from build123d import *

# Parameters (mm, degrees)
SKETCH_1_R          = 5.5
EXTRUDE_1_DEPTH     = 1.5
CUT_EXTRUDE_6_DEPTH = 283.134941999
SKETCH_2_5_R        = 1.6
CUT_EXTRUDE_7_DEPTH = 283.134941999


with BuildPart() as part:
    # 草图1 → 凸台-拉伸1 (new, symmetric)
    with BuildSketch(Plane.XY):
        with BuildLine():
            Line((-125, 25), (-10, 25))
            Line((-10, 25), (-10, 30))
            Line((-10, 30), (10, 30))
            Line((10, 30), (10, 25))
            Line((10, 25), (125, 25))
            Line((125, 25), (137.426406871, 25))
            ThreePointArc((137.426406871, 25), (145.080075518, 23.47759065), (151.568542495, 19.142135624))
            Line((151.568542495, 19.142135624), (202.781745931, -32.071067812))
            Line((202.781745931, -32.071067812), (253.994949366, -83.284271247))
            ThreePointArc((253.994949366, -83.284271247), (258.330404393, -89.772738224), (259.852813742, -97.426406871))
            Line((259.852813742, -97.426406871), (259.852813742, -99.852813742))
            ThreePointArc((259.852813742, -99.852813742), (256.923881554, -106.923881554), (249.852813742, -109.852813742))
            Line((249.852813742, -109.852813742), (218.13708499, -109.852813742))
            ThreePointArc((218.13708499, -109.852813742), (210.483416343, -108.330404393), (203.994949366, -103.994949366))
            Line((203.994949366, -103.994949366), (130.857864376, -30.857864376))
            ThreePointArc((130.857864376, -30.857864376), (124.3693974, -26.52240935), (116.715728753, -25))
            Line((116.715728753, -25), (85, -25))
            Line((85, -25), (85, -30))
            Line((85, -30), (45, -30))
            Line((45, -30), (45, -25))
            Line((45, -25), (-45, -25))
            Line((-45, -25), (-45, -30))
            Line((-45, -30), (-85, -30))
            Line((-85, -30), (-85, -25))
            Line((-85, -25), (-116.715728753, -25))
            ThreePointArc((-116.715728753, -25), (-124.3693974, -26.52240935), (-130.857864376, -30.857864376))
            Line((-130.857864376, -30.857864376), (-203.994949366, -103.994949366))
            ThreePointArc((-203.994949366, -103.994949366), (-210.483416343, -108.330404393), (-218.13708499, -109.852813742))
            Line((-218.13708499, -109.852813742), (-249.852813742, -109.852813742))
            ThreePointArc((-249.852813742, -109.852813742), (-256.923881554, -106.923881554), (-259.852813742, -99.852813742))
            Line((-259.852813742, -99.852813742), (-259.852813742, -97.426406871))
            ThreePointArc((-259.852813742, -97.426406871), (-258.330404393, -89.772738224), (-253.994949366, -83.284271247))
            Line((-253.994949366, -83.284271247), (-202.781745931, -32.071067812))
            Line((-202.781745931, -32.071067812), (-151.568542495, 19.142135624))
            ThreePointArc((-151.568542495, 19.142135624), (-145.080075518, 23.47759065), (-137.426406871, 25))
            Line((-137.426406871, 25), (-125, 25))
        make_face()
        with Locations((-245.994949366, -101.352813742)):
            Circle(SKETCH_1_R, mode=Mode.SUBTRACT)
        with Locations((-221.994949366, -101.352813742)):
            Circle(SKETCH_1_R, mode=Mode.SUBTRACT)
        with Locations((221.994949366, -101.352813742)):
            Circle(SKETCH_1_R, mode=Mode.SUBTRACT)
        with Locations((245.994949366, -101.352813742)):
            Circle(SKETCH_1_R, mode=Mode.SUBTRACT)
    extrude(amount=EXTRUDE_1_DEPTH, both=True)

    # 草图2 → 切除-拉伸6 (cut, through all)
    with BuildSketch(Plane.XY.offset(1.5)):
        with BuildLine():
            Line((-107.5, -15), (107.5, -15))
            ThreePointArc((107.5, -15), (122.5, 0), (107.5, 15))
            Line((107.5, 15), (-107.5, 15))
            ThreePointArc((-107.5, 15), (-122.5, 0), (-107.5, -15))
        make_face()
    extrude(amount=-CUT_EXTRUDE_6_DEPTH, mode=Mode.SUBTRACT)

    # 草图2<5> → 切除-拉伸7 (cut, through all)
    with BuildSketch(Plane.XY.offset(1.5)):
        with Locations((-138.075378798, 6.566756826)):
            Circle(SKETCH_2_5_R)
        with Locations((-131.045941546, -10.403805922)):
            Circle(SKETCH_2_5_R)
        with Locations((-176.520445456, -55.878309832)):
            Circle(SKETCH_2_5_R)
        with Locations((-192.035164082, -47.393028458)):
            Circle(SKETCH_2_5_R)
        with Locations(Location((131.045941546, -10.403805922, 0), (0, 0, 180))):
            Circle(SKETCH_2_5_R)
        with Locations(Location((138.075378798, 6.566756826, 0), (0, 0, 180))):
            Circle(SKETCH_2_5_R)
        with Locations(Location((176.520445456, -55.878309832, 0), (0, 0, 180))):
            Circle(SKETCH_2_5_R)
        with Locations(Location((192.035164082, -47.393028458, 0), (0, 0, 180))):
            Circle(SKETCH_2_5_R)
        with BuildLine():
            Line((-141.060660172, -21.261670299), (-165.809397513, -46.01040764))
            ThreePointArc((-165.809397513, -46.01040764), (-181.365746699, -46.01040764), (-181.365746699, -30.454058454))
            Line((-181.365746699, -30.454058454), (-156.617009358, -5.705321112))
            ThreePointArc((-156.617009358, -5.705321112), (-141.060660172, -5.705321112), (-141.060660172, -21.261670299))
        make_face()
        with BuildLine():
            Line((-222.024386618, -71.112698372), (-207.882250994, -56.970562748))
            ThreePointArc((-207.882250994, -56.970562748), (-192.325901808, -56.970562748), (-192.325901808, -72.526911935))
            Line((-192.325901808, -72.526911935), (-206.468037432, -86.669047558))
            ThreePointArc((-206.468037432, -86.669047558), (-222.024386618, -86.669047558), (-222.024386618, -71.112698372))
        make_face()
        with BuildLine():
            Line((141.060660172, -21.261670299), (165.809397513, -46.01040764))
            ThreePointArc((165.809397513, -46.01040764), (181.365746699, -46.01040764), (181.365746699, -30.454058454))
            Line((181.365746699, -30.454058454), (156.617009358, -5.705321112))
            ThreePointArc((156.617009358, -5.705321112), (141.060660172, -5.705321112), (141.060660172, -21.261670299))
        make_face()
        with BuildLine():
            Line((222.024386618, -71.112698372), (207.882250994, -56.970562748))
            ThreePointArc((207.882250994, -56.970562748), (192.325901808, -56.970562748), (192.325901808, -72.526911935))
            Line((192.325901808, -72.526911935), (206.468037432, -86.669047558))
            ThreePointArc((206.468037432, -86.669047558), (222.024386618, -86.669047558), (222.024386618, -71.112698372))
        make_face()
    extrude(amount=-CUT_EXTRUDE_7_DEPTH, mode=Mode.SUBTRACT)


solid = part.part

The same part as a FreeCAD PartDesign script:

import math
import FreeCAD as App
import Part
import Sketcher
from FreeCAD import Vector

doc = App.newDocument("Part")
body = doc.addObject("PartDesign::Body", "Body")

sketch1 = body.newObject("Sketcher::SketchObject", "Sketch")
sketch1.AttachmentSupport = (doc.getObject("XY_Plane"), [""])
sketch1.MapMode = "FlatFace"
sketch1.addGeometry(Part.LineSegment(Vector(-10, 30, 0), Vector(-10, 25, 0)), False)
sketch1.addGeometry(Part.LineSegment(Vector(-10, 25, 0), Vector(-137.4, 25, 0)), False)
sketch1.addGeometry(Part.ArcOfCircle(Part.Circle(Vector(-137.4, 5, 0), Vector(0, 0, 1), 20), math.radians(90), math.radians(135)), False)
sketch1.addGeometry(Part.LineSegment(Vector(-151.6, 19.1, 0), Vector(-254, -83.3, 0)), False)
sketch1.addGeometry(Part.ArcOfCircle(Part.Circle(Vector(-239.9, -97.4, 0), Vector(0, 0, 1), 20), math.radians(135), math.radians(180)), False)
sketch1.addGeometry(Part.LineSegment(Vector(-259.9, -97.4, 0), Vector(-259.9, -99.9, 0)), False)
sketch1.addGeometry(Part.ArcOfCircle(Part.Circle(Vector(-249.9, -99.9, 0), Vector(0, 0, 1), 10), math.radians(180), math.radians(270)), False)
sketch1.addGeometry(Part.LineSegment(Vector(-249.9, -109.9, 0), Vector(-218.1, -109.9, 0)), False)
sketch1.addGeometry(Part.ArcOfCircle(Part.Circle(Vector(-218.1, -89.9, 0), Vector(0, 0, 1), 20), math.radians(-90), math.radians(-45)), False)
sketch1.addGeometry(Part.LineSegment(Vector(-204, -104, 0), Vector(-130.9, -30.9, 0)), False)
sketch1.addGeometry(Part.ArcOfCircle(Part.Circle(Vector(-116.7, -45, 0), Vector(0, 0, 1), 20), math.radians(90), math.radians(135)), False)
sketch1.addGeometry(Part.LineSegment(Vector(-116.7, -25, 0), Vector(-85, -25, 0)), False)
sketch1.addGeometry(Part.LineSegment(Vector(-85, -25, 0), Vector(-85, -30, 0)), False)
sketch1.addGeometry(Part.LineSegment(Vector(-85, -30, 0), Vector(-45, -30, 0)), False)
sketch1.addGeometry(Part.LineSegment(Vector(-45, -30, 0), Vector(-45, -25, 0)), False)
sketch1.addGeometry(Part.LineSegment(Vector(-45, -25, 0), Vector(45, -25, 0)), False)
sketch1.addGeometry(Part.LineSegment(Vector(45, -25, 0), Vector(45, -30, 0)), False)
sketch1.addGeometry(Part.LineSegment(Vector(45, -30, 0), Vector(85, -30, 0)), False)
sketch1.addGeometry(Part.LineSegment(Vector(85, -30, 0), Vector(85, -25, 0)), False)
sketch1.addGeometry(Part.LineSegment(Vector(85, -25, 0), Vector(116.7, -25, 0)), False)
sketch1.addGeometry(Part.ArcOfCircle(Part.Circle(Vector(116.7, -45, 0), Vector(0, 0, 1), 20), math.radians(45), math.radians(90)), False)
sketch1.addGeometry(Part.LineSegment(Vector(130.9, -30.9, 0), Vector(204, -104, 0)), False)
sketch1.addGeometry(Part.ArcOfCircle(Part.Circle(Vector(218.1, -89.9, 0), Vector(0, 0, 1), 20), math.radians(-135), math.radians(-90)), False)
sketch1.addGeometry(Part.LineSegment(Vector(218.1, -109.9, 0), Vector(249.9, -109.9, 0)), False)
sketch1.addGeometry(Part.ArcOfCircle(Part.Circle(Vector(249.9, -99.9, 0), Vector(0, 0, 1), 10), math.radians(-90), math.radians(0)), False)
sketch1.addGeometry(Part.LineSegment(Vector(259.9, -99.9, 0), Vector(259.9, -97.4, 0)), False)
sketch1.addGeometry(Part.ArcOfCircle(Part.Circle(Vector(239.9, -97.4, 0), Vector(0, 0, 1), 20), math.radians(0), math.radians(45)), False)
sketch1.addGeometry(Part.LineSegment(Vector(254, -83.3, 0), Vector(151.6, 19.1, 0)), False)
sketch1.addGeometry(Part.ArcOfCircle(Part.Circle(Vector(137.4, 5, 0), Vector(0, 0, 1), 20), math.radians(45), math.radians(90)), False)
sketch1.addGeometry(Part.LineSegment(Vector(137.4, 25, 0), Vector(10, 25, 0)), False)
sketch1.addGeometry(Part.LineSegment(Vector(10, 25, 0), Vector(10, 30, 0)), False)
sketch1.addGeometry(Part.LineSegment(Vector(10, 30, 0), Vector(-10, 30, 0)), False)
sketch1.addGeometry(Part.Circle(Vector(246, -101.4, 0), Vector(0, 0, 1), 5.5), False)
sketch1.addGeometry(Part.Circle(Vector(222, -101.4, 0), Vector(0, 0, 1), 5.5), False)
sketch1.addGeometry(Part.Circle(Vector(-222, -101.4, 0), Vector(0, 0, 1), 5.5), False)
sketch1.addGeometry(Part.Circle(Vector(-246, -101.4, 0), Vector(0, 0, 1), 5.5), False)
sketch1.addConstraint(Sketcher.Constraint("Coincident", 0, 2, 1, 1))
sketch1.addConstraint(Sketcher.Constraint("Tangent", 1, 2, 2, 1))
sketch1.addConstraint(Sketcher.Constraint("Tangent", 2, 2, 3, 1))
sketch1.addConstraint(Sketcher.Constraint("Tangent", 3, 2, 4, 1))
sketch1.addConstraint(Sketcher.Constraint("Tangent", 4, 2, 5, 1))
sketch1.addConstraint(Sketcher.Constraint("Tangent", 5, 2, 6, 1))
sketch1.addConstraint(Sketcher.Constraint("Tangent", 6, 2, 7, 1))
sketch1.addConstraint(Sketcher.Constraint("Tangent", 7, 2, 8, 1))
sketch1.addConstraint(Sketcher.Constraint("Tangent", 8, 2, 9, 1))
sketch1.addConstraint(Sketcher.Constraint("Tangent", 9, 2, 10, 2))
sketch1.addConstraint(Sketcher.Constraint("Tangent", 10, 1, 11, 1))
sketch1.addConstraint(Sketcher.Constraint("Coincident", 11, 2, 12, 1))
sketch1.addConstraint(Sketcher.Constraint("Coincident", 12, 2, 13, 1))
sketch1.addConstraint(Sketcher.Constraint("Coincident", 13, 2, 14, 1))
sketch1.addConstraint(Sketcher.Constraint("Coincident", 14, 2, 15, 1))
sketch1.addConstraint(Sketcher.Constraint("Coincident", 15, 2, 16, 1))
sketch1.addConstraint(Sketcher.Constraint("Coincident", 16, 2, 17, 1))
sketch1.addConstraint(Sketcher.Constraint("Coincident", 17, 2, 18, 1))
sketch1.addConstraint(Sketcher.Constraint("Coincident", 18, 2, 19, 1))
sketch1.addConstraint(Sketcher.Constraint("Tangent", 19, 2, 20, 2))
sketch1.addConstraint(Sketcher.Constraint("Tangent", 20, 1, 21, 1))
sketch1.addConstraint(Sketcher.Constraint("Tangent", 21, 2, 22, 1))
sketch1.addConstraint(Sketcher.Constraint("Tangent", 22, 2, 23, 1))
sketch1.addConstraint(Sketcher.Constraint("Tangent", 23, 2, 24, 1))
sketch1.addConstraint(Sketcher.Constraint("Tangent", 24, 2, 25, 1))
sketch1.addConstraint(Sketcher.Constraint("Tangent", 25, 2, 26, 1))
sketch1.addConstraint(Sketcher.Constraint("Tangent", 26, 2, 27, 1))
sketch1.addConstraint(Sketcher.Constraint("Tangent", 27, 2, 28, 1))
sketch1.addConstraint(Sketcher.Constraint("Tangent", 28, 2, 29, 1))
sketch1.addConstraint(Sketcher.Constraint("Coincident", 29, 2, 30, 1))
sketch1.addConstraint(Sketcher.Constraint("Coincident", 30, 2, 31, 1))
sketch1.addConstraint(Sketcher.Constraint("Coincident", 31, 2, 0, 1))
sketch1.addConstraint(Sketcher.Constraint("Vertical", 0))
sketch1.addConstraint(Sketcher.Constraint("Horizontal", 1))
sketch1.addConstraint(Sketcher.Constraint("Vertical", 5))
sketch1.addConstraint(Sketcher.Constraint("Horizontal", 7))
sketch1.addConstraint(Sketcher.Constraint("Horizontal", 11))
sketch1.addConstraint(Sketcher.Constraint("Vertical", 12))
sketch1.addConstraint(Sketcher.Constraint("Horizontal", 13))
sketch1.addConstraint(Sketcher.Constraint("Vertical", 14))
sketch1.addConstraint(Sketcher.Constraint("Horizontal", 15))
sketch1.addConstraint(Sketcher.Constraint("Vertical", 16))
sketch1.addConstraint(Sketcher.Constraint("Horizontal", 17))
sketch1.addConstraint(Sketcher.Constraint("Vertical", 18))
sketch1.addConstraint(Sketcher.Constraint("Horizontal", 19))
sketch1.addConstraint(Sketcher.Constraint("Horizontal", 23))
sketch1.addConstraint(Sketcher.Constraint("Vertical", 25))
sketch1.addConstraint(Sketcher.Constraint("Horizontal", 29))
sketch1.addConstraint(Sketcher.Constraint("Vertical", 30))
sketch1.addConstraint(Sketcher.Constraint("Horizontal", 31))
sketch1.addConstraint(Sketcher.Constraint("Equal", 2, 4))
sketch1.addConstraint(Sketcher.Constraint("Equal", 4, 8))
sketch1.addConstraint(Sketcher.Constraint("Equal", 8, 10))
sketch1.addConstraint(Sketcher.Constraint("Equal", 10, 20))
sketch1.addConstraint(Sketcher.Constraint("Equal", 20, 22))
sketch1.addConstraint(Sketcher.Constraint("Equal", 6, 24))
sketch1.addConstraint(Sketcher.Constraint("Equal", 22, 26))
sketch1.addConstraint(Sketcher.Constraint("Equal", 26, 28))
sketch1.addConstraint(Sketcher.Constraint("Equal", 32, 33))
sketch1.addConstraint(Sketcher.Constraint("Equal", 33, 34))
sketch1.addConstraint(Sketcher.Constraint("Equal", 34, 35))
sketch1.addConstraint(Sketcher.Constraint("Symmetric", 10, 3, 20, 3, -2))
sketch1.addConstraint(Sketcher.Constraint("Symmetric", 8, 3, 22, 3, -2))
sketch1.addConstraint(Sketcher.Constraint("Symmetric", 4, 3, 26, 3, -2))
sketch1.addConstraint(Sketcher.Constraint("Symmetric", 2, 3, 28, 3, -2))
sketch1.addConstraint(Sketcher.Constraint("Symmetric", 33, 3, 34, 3, -2))
sketch1.addConstraint(Sketcher.Constraint("Symmetric", 32, 3, 35, 3, -2))
sketch1.addConstraint(Sketcher.Constraint("Symmetric", 13, 2, 16, 2, -2))
sketch1.addConstraint(Sketcher.Constraint("Parallel", 3, 9))
sketch1.addConstraint(Sketcher.Constraint("Perpendicular", 9, 21))
sketch1.addConstraint(Sketcher.Constraint("Horizontal", 32, 3, 33, 3))
sketch1.addConstraint(Sketcher.Constraint("Horizontal", 11, 2, 14, 2))
sketch1.addConstraint(Sketcher.Constraint("Equal", 7, 11))
sketch1.addConstraint(Sketcher.Constraint("Equal", 13, 17))
sketch1.addConstraint(Sketcher.Constraint("Equal", 1, 29))
sketch1.addConstraint(Sketcher.Constraint("Equal", 0, 12))
sketch1.addConstraint(Sketcher.Constraint("Diameter", 32, 11.0))
sketch1.addConstraint(Sketcher.Constraint("Radius", 2, 20.0))
sketch1.addConstraint(Sketcher.Constraint("Radius", 6, 10.0))
sketch1.addConstraint(Sketcher.Constraint("DistanceX", 13, 1, 13, 2, 40.0))
sketch1.addConstraint(Sketcher.Constraint("DistanceX", 15, 1, 15, 2, 90.0))
sketch1.addConstraint(Sketcher.Constraint("DistanceX", 31, 2, 31, 1, 20.0))
sketch1.addConstraint(Sketcher.Constraint("DistanceY", 0, 2, 0, 1, 5.0))
sketch1.addConstraint(Sketcher.Constraint("DistanceY", -1, 1, 2, 3, 5.0))
sketch1.addConstraint(Sketcher.Constraint("DistanceY", 10, 3, -1, 1, 45.0))
sketch1.addConstraint(Sketcher.Constraint("DistanceX", 33, 3, 32, 3, 24.0))
sketch1.addConstraint(Sketcher.Constraint("DistanceX", 3, 2, 35, 3, 8.0))
sketch1.addConstraint(Sketcher.Constraint("DistanceX", 34, 3, 8, 2, 18.0))
sketch1.addConstraint(Sketcher.Constraint("DistanceY", 32, 3, 24, 3, 1.5))
sketch1.addConstraint(Sketcher.Constraint("DistanceX", 4, 3, 22, 3, 457.989899))
sketch1.addConstraint(Sketcher.Constraint("DistanceX", 1, 2, 1, 1, 127.426407))
pad1 = body.newObject("PartDesign::Pad", "Pad")
pad1.Profile = sketch1
pad1.Length = 3
pad1.Midplane = True

sketch2 = body.newObject("Sketcher::SketchObject", "Sketch001")
sketch2.AttachmentSupport = (doc.getObject("XY_Plane"), [""])
sketch2.MapMode = "FlatFace"
sketch2.AttachmentOffset = App.Placement(Vector(0, 0, 1.5), App.Rotation())
sketch2.addGeometry(Part.LineSegment(Vector(-108, -15, 0), Vector(108, -15, 0)), False)
sketch2.addGeometry(Part.ArcOfCircle(Part.Circle(Vector(108, 0, 0), Vector(0, 0, 1), 15), math.radians(-90), math.radians(90)), False)
sketch2.addGeometry(Part.LineSegment(Vector(108, 15, 0), Vector(-108, 15, 0)), False)
sketch2.addGeometry(Part.ArcOfCircle(Part.Circle(Vector(-108, 0, 0), Vector(0, 0, 1), 15), math.radians(90), math.radians(270)), False)
sketch2.addConstraint(Sketcher.Constraint("Tangent", 0, 2, 1, 1))
sketch2.addConstraint(Sketcher.Constraint("Tangent", 1, 2, 2, 1))
sketch2.addConstraint(Sketcher.Constraint("Tangent", 2, 2, 3, 1))
sketch2.addConstraint(Sketcher.Constraint("Tangent", 3, 2, 0, 1))
sketch2.addConstraint(Sketcher.Constraint("Horizontal", 0))
sketch2.addConstraint(Sketcher.Constraint("Horizontal", 2))
sketch2.addConstraint(Sketcher.Constraint("Symmetric", 1, 3, 3, 3, -1, 1))
sketch2.addConstraint(Sketcher.Constraint("Radius", 1, 15.0))
sketch2.addConstraint(Sketcher.Constraint("DistanceX", 0, 1, 0, 2, 215.0))
pocket1 = body.newObject("PartDesign::Pocket", "Pocket")
pocket1.Profile = sketch2
pocket1.Type = "ThroughAll"

sketch3 = body.newObject("Sketcher::SketchObject", "Sketch002")
sketch3.AttachmentSupport = (doc.getObject("XY_Plane"), [""])
sketch3.MapMode = "FlatFace"
sketch3.AttachmentOffset = App.Placement(Vector(0, 0, 1.5), App.Rotation())
sketch3.addGeometry(Part.Circle(Vector(-138.1, 6.6, 0), Vector(0, 0, 1), 1.6), False)
sketch3.addGeometry(Part.Circle(Vector(-131, -10.4, 0), Vector(0, 0, 1), 1.6), False)
sketch3.addGeometry(Part.Circle(Vector(-176.5, -55.9, 0), Vector(0, 0, 1), 1.6), False)
sketch3.addGeometry(Part.Circle(Vector(-192, -47.4, 0), Vector(0, 0, 1), 1.6), False)
sketch3.addGeometry(Part.Circle(Vector(131, -10.4, 0), Vector(0, 0, 1), 1.6), False)
sketch3.addGeometry(Part.Circle(Vector(138.1, 6.6, 0), Vector(0, 0, 1), 1.6), False)
sketch3.addGeometry(Part.Circle(Vector(176.5, -55.9, 0), Vector(0, 0, 1), 1.6), False)
sketch3.addGeometry(Part.Circle(Vector(192, -47.4, 0), Vector(0, 0, 1), 1.6), False)
sketch3.addGeometry(Part.LineSegment(Vector(-165.8, -46, 0), Vector(-141.1, -21.3, 0)), False)
sketch3.addGeometry(Part.ArcOfCircle(Part.Circle(Vector(-148.8, -13.5, 0), Vector(0, 0, 1), 11), math.radians(-45), math.radians(135)), False)
sketch3.addGeometry(Part.LineSegment(Vector(-156.6, -5.7, 0), Vector(-181.4, -30.5, 0)), False)
sketch3.addGeometry(Part.ArcOfCircle(Part.Circle(Vector(-173.6, -38.2, 0), Vector(0, 0, 1), 11), math.radians(135), math.radians(315)), False)
sketch3.addGeometry(Part.LineSegment(Vector(-207.9, -57, 0), Vector(-222, -71.1, 0)), False)
sketch3.addGeometry(Part.ArcOfCircle(Part.Circle(Vector(-214.2, -78.9, 0), Vector(0, 0, 1), 11), math.radians(135), math.radians(315)), False)
sketch3.addGeometry(Part.LineSegment(Vector(-206.5, -86.7, 0), Vector(-192.3, -72.5, 0)), False)
sketch3.addGeometry(Part.ArcOfCircle(Part.Circle(Vector(-200.1, -64.7, 0), Vector(0, 0, 1), 11), math.radians(-45), math.radians(135)), False)
sketch3.addGeometry(Part.LineSegment(Vector(141.1, -21.3, 0), Vector(165.8, -46, 0)), False)
sketch3.addGeometry(Part.ArcOfCircle(Part.Circle(Vector(173.6, -38.2, 0), Vector(0, 0, 1), 11), math.radians(-135), math.radians(45)), False)
sketch3.addGeometry(Part.LineSegment(Vector(181.4, -30.5, 0), Vector(156.6, -5.7, 0)), False)
sketch3.addGeometry(Part.ArcOfCircle(Part.Circle(Vector(148.8, -13.5, 0), Vector(0, 0, 1), 11), math.radians(45), math.radians(225)), False)
sketch3.addGeometry(Part.LineSegment(Vector(222, -71.1, 0), Vector(207.9, -57, 0)), False)
sketch3.addGeometry(Part.ArcOfCircle(Part.Circle(Vector(200.1, -64.7, 0), Vector(0, 0, 1), 11), math.radians(45), math.radians(225)), False)
sketch3.addGeometry(Part.LineSegment(Vector(192.3, -72.5, 0), Vector(206.5, -86.7, 0)), False)
sketch3.addGeometry(Part.ArcOfCircle(Part.Circle(Vector(214.2, -78.9, 0), Vector(0, 0, 1), 11), math.radians(-135), math.radians(45)), False)
sketch3.addConstraint(Sketcher.Constraint("Tangent", 8, 2, 9, 1))
sketch3.addConstraint(Sketcher.Constraint("Tangent", 9, 2, 10, 1))
sketch3.addConstraint(Sketcher.Constraint("Tangent", 10, 2, 11, 1))
sketch3.addConstraint(Sketcher.Constraint("Tangent", 11, 2, 8, 1))
sketch3.addConstraint(Sketcher.Constraint("Tangent", 12, 2, 13, 1))
sketch3.addConstraint(Sketcher.Constraint("Tangent", 13, 2, 14, 1))
sketch3.addConstraint(Sketcher.Constraint("Tangent", 14, 2, 15, 1))
sketch3.addConstraint(Sketcher.Constraint("Tangent", 15, 2, 12, 1))
sketch3.addConstraint(Sketcher.Constraint("Tangent", 16, 2, 17, 1))
sketch3.addConstraint(Sketcher.Constraint("Tangent", 17, 2, 18, 1))
sketch3.addConstraint(Sketcher.Constraint("Tangent", 18, 2, 19, 1))
sketch3.addConstraint(Sketcher.Constraint("Tangent", 19, 2, 16, 1))
sketch3.addConstraint(Sketcher.Constraint("Tangent", 20, 2, 21, 1))
sketch3.addConstraint(Sketcher.Constraint("Tangent", 21, 2, 22, 1))
sketch3.addConstraint(Sketcher.Constraint("Tangent", 22, 2, 23, 1))
sketch3.addConstraint(Sketcher.Constraint("Tangent", 23, 2, 20, 1))
sketch3.addConstraint(Sketcher.Constraint("Equal", 0, 1))
sketch3.addConstraint(Sketcher.Constraint("Equal", 1, 2))
sketch3.addConstraint(Sketcher.Constraint("Equal", 2, 3))
sketch3.addConstraint(Sketcher.Constraint("Equal", 3, 4))
sketch3.addConstraint(Sketcher.Constraint("Equal", 4, 5))
sketch3.addConstraint(Sketcher.Constraint("Equal", 5, 6))
sketch3.addConstraint(Sketcher.Constraint("Equal", 6, 7))
sketch3.addConstraint(Sketcher.Constraint("Equal", 9, 11))
sketch3.addConstraint(Sketcher.Constraint("Equal", 11, 13))
sketch3.addConstraint(Sketcher.Constraint("Equal", 13, 15))
sketch3.addConstraint(Sketcher.Constraint("Equal", 15, 17))
sketch3.addConstraint(Sketcher.Constraint("Equal", 17, 19))
sketch3.addConstraint(Sketcher.Constraint("Equal", 19, 21))
sketch3.addConstraint(Sketcher.Constraint("Equal", 21, 23))
sketch3.addConstraint(Sketcher.Constraint("Symmetric", 1, 3, 4, 3, -2))
sketch3.addConstraint(Sketcher.Constraint("Symmetric", 0, 3, 5, 3, -2))
sketch3.addConstraint(Sketcher.Constraint("Symmetric", 2, 3, 6, 3, -2))
sketch3.addConstraint(Sketcher.Constraint("Symmetric", 3, 3, 7, 3, -2))
sketch3.addConstraint(Sketcher.Constraint("Symmetric", 11, 3, 17, 3, -2))
sketch3.addConstraint(Sketcher.Constraint("Symmetric", 9, 3, 19, 3, -2))
sketch3.addConstraint(Sketcher.Constraint("Symmetric", 15, 3, 21, 3, -2))
sketch3.addConstraint(Sketcher.Constraint("Symmetric", 13, 3, 23, 3, -2))
sketch3.addConstraint(Sketcher.Constraint("Parallel", 10, 12))
sketch3.addConstraint(Sketcher.Constraint("Perpendicular", 14, 16))
sketch3.addConstraint(Sketcher.Constraint("Radius", 9, 11.0))
sketch3.addConstraint(Sketcher.Constraint("Diameter", 0, 3.2))
sketch3.addConstraint(Sketcher.Constraint("Distance", 8, 35.0))
sketch3.addConstraint(Sketcher.Constraint("Distance", 12, 20.0))
sketch3.addConstraint(Sketcher.Constraint("DistanceY", 12, 2, -1, 1, 71.112698))
sketch3.addConstraint(Sketcher.Constraint("DistanceX", 14, 2, -1, 1, 192.325902))
sketch3.addConstraint(Sketcher.Constraint("DistanceX", 10, 2, 2, 3, 4.845301))
sketch3.addConstraint(Sketcher.Constraint("DistanceX", 0, 3, -1, 1, 138.075379))
sketch3.addConstraint(Sketcher.Constraint("DistanceX", 1, 3, -1, 1, 131.045942))
sketch3.addConstraint(Sketcher.Constraint("DistanceY", 2, 3, -1, 1, 55.87831))
sketch3.addConstraint(Sketcher.Constraint("DistanceY", 3, 3, -1, 1, 47.393028))
sketch3.addConstraint(Sketcher.Constraint("DistanceX", 8, 2, -1, 1, 141.06066))
sketch3.addConstraint(Sketcher.Constraint("DistanceY", 8, 2, -1, 1, 21.26167))
sketch3.addConstraint(Sketcher.Constraint("DistanceX", 3, 3, 2, 3, 15.514719))
sketch3.addConstraint(Sketcher.Constraint("DistanceY", 9, 3, 1, 3, 3.07969))
sketch3.addConstraint(Sketcher.Constraint("DistanceY", 11, 3, 0, 3, 44.79899))
pocket2 = body.newObject("PartDesign::Pocket", "Pocket001")
pocket2.Profile = sketch3
pocket2.Type = "ThroughAll"

doc.recompute()
